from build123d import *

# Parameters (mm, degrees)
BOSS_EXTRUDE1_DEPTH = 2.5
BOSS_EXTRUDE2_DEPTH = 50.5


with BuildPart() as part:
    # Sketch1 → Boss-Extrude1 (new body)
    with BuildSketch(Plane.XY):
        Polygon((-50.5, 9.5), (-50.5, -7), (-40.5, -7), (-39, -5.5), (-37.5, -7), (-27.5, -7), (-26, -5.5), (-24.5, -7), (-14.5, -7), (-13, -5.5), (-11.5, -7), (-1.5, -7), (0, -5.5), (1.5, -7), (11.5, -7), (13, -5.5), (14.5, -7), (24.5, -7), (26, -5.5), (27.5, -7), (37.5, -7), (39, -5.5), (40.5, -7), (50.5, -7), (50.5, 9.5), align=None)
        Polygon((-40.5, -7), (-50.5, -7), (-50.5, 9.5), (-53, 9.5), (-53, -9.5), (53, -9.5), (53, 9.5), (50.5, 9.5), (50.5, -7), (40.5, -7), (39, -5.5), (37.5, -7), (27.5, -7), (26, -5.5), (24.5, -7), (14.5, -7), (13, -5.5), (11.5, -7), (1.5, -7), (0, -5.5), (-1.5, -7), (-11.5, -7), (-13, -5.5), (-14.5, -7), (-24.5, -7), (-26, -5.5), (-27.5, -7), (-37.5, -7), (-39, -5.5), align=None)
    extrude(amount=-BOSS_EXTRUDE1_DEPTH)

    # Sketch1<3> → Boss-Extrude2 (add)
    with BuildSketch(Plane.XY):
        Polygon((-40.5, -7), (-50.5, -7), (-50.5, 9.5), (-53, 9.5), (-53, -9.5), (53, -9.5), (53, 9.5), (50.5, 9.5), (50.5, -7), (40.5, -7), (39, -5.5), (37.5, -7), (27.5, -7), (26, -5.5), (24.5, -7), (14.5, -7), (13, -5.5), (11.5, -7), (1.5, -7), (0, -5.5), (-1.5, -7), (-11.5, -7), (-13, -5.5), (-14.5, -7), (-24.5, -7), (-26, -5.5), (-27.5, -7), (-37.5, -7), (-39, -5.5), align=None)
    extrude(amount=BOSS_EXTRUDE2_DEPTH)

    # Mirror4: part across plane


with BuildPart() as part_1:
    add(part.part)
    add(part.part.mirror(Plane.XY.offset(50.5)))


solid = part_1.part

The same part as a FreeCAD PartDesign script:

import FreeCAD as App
import Part
import Sketcher

V = App.Vector

doc = App.newDocument("Part")
params = doc.addObject("Spreadsheet::Sheet", "Params")
for row, (alias, value) in enumerate([
    ("sketch1_width", "106 mm"),
    ("sketch1_height", "19 mm"),
    ("pad1_length", "2.5 mm"),
    ("sketch2_width", "10 mm"),
    ("sketch2_width2", "106 mm"),
    ("sketch2_height", "19 mm"),
    ("sketch2_width3", "2.5 mm"),
    ("sketch2_height2", "16.5 mm"),
    ("pad2_length", "50.5 mm"),
], start=1):
    params.set(f"A{row}", alias)
    params.set(f"B{row}", "=" + value)
    params.setAlias(f"B{row}", alias)

body = doc.addObject("PartDesign::Body", "Body")

sketch1 = doc.addObject("Sketcher::SketchObject", "Sketch")
body.addObject(sketch1)
sketch1.AttachmentSupport = (doc.XY_Plane, [""])
sketch1.MapMode = "FlatFace"
sketch1.addGeometry([
    Part.LineSegment(V(-53, 10, 0), V(-53, -10, 0)),
    Part.LineSegment(V(-53, -10, 0), V(53, -10, 0)),
    Part.LineSegment(V(53, -10, 0), V(53, 10, 0)),
    Part.LineSegment(V(53, 10, 0), V(-53, 10, 0)),
], False)
sketch1.addConstraint([
    Sketcher.Constraint("Coincident", 0, 2, 1, 1),
    Sketcher.Constraint("Coincident", 1, 2, 2, 1),
    Sketcher.Constraint("Coincident", 2, 2, 3, 1),
    Sketcher.Constraint("Coincident", 3, 2, 0, 1),
    Sketcher.Constraint("Vertical", 0),
    Sketcher.Constraint("Horizontal", 1),
    Sketcher.Constraint("Vertical", 2),
    Sketcher.Constraint("Horizontal", 3),
    Sketcher.Constraint("Symmetric", 0, 2, 2, 2, -1, 1),
    Sketcher.Constraint("DistanceX", 1, 1, 1, 2, 106.0),
    Sketcher.Constraint("DistanceY", 0, 2, 0, 1, 19.0),
])
sketch1.setExpression("Constraints[9]", "Params.sketch1_width")
sketch1.setExpression("Constraints[10]", "Params.sketch1_height")
pad1 = doc.addObject("PartDesign::Pad", "Pad")
body.addObject(pad1)
pad1.Profile = sketch1
pad1.setExpression("Length", "Params.pad1_length")
pad1.Reversed = True

sketch2 = doc.addObject("Sketcher::SketchObject", "Sketch001")
body.addObject(sketch2)
sketch2.AttachmentSupport = (doc.XY_Plane, [""])
sketch2.MapMode = "FlatFace"
sketch2.addGeometry([
    Part.LineSegment(V(-40.5, -7, 0), V(-50.5, -7, 0)),
    Part.LineSegment(V(-50.5, -7, 0), V(-50.5, 9.5, 0)),
    Part.LineSegment(V(-50.5, 9.5, 0), V(-53, 9.5, 0)),
    Part.LineSegment(V(-53, 9.5, 0), V(-53, -9.5, 0)),
    Part.LineSegment(V(-53, -9.5, 0), V(53, -9.5, 0)),
    Part.LineSegment(V(53, -9.5, 0), V(53, 9.5, 0)),
    Part.LineSegment(V(53, 9.5, 0), V(50.5, 9.5, 0)),
    Part.LineSegment(V(50.5, 9.5, 0), V(50.5, -7, 0)),
    Part.LineSegment(V(50.5, -7, 0), V(40.5, -7, 0)),
    Part.LineSegment(V(40.5, -7, 0), V(39, -5.5, 0)),
    Part.LineSegment(V(39, -5.5, 0), V(37.5, -7, 0)),
    Part.LineSegment(V(37.5, -7, 0), V(27.5, -7, 0)),
    Part.LineSegment(V(27.5, -7, 0), V(26, -5.5, 0)),
    Part.LineSegment(V(26, -5.5, 0), V(24.5, -7, 0)),
    Part.LineSegment(V(24.5, -7, 0), V(14.5, -7, 0)),
    Part.LineSegment(V(14.5, -7, 0), V(13, -5.5, 0)),
    Part.LineSegment(V(13, -5.5, 0), V(11.5, -7, 0)),
    Part.LineSegment(V(11.5, -7, 0), V(1.5, -7, 0)),
    Part.LineSegment(V(1.5, -7, 0), V(0, -5.5, 0)),
    Part.LineSegment(V(0, -5.5, 0), V(-1.5, -7, 0)),
    Part.LineSegment(V(-1.5, -7, 0), V(-11.5, -7, 0)),
    Part.LineSegment(V(-11.5, -7, 0), V(-13, -5.5, 0)),
    Part.LineSegment(V(-13, -5.5, 0), V(-14.5, -7, 0)),
    Part.LineSegment(V(-14.5, -7, 0), V(-24.5, -7, 0)),
    Part.LineSegment(V(-24.5, -7, 0), V(-26, -5.5, 0)),
    Part.LineSegment(V(-26, -5.5, 0), V(-27.5, -7, 0)),
    Part.LineSegment(V(-27.5, -7, 0), V(-37.5, -7, 0)),
    Part.LineSegment(V(-37.5, -7, 0), V(-39, -5.5, 0)),
    Part.LineSegment(V(-39, -5.5, 0), V(-40.5, -7, 0)),
], False)
sketch2.addConstraint([
    Sketcher.Constraint("Coincident", 0, 2, 1, 1),
    Sketcher.Constraint("Coincident", 1, 2, 2, 1),
    Sketcher.Constraint("Coincident", 2, 2, 3, 1),
    Sketcher.Constraint("Coincident", 3, 2, 4, 1),
    Sketcher.Constraint("Coincident", 4, 2, 5, 1),
    Sketcher.Constraint("Coincident", 5, 2, 6, 1),
    Sketcher.Constraint("Coincident", 6, 2, 7, 1),
    Sketcher.Constraint("Coincident", 7, 2, 8, 1),
    Sketcher.Constraint("Coincident", 8, 2, 9, 1),
    Sketcher.Constraint("Coincident", 9, 2, 10, 1),
    Sketcher.Constraint("Coincident", 10, 2, 11, 1),
    Sketcher.Constraint("Coincident", 11, 2, 12, 1),
    Sketcher.Constraint("Coincident", 12, 2, 13, 1),
    Sketcher.Constraint("Coincident", 13, 2, 14, 1),
    Sketcher.Constraint("Coincident", 14, 2, 15, 1),
    Sketcher.Constraint("Coincident", 15, 2, 16, 1),
    Sketcher.Constraint("Coincident", 16, 2, 17, 1),
    Sketcher.Constraint("Coincident", 17, 2, 18, 1),
    Sketcher.Constraint("Coincident", 18, 2, 19, 1),
    Sketcher.Constraint("Coincident", 19, 2, 20, 1),
    Sketcher.Constraint("Coincident", 20, 2, 21, 1),
    Sketcher.Constraint("Coincident", 21, 2, 22, 1),
    Sketcher.Constraint("Coincident", 22, 2, 23, 1),
    Sketcher.Constraint("Coincident", 23, 2, 24, 1),
    Sketcher.Constraint("Coincident", 24, 2, 25, 1),
    Sketcher.Constraint("Coincident", 25, 2, 26, 1),
    Sketcher.Constraint("Coincident", 26, 2, 27, 1),
    Sketcher.Constraint("Coincident", 27, 2, 28, 1),
    Sketcher.Constraint("Coincident", 28, 2, 0, 1),
    Sketcher.Constraint("Horizontal", 0),
    Sketcher.Constraint("Vertical", 1),
    Sketcher.Constraint("Horizontal", 2),
    Sketcher.Constraint("Vertical", 3),
    Sketcher.Constraint("Horizontal", 4),
    Sketcher.Constraint("Vertical", 5),
    Sketcher.Constraint("Horizontal", 6),
    Sketcher.Constraint("Vertical", 7),
    Sketcher.Constraint("Horizontal", 8),
    Sketcher.Constraint("Horizontal", 11),
    Sketcher.Constraint("Horizontal", 14),
    Sketcher.Constraint("Horizontal", 17),
    Sketcher.Constraint("Horizontal", 20),
    Sketcher.Constraint("Horizontal", 23),
    Sketcher.Constraint("Horizontal", 26),
    Sketcher.Constraint("Symmetric", 2, 2, 4, 2, -1, 1),
    Sketcher.Constraint("Symmetric", 1, 2, 6, 2, -2),
    Sketcher.Constraint("Symmetric", 17, 2, 19, 2, -2),
    Sketcher.Constraint("Symmetric", 15, 2, 21, 2, -2),
    Sketcher.Constraint("Symmetric", 14, 2, 22, 2, -2),
    Sketcher.Constraint("Symmetric", 12, 2, 24, 2, -2),
    Sketcher.Constraint("Symmetric", 11, 2, 25, 2, -2),
    Sketcher.Constraint("Symmetric", 9, 2, 27, 2, -2),
    Sketcher.Constraint("Symmetric", 8, 2, 28, 2, -2),
    Sketcher.Constraint("PointOnObject", 18, 2, -2),
    Sketcher.Constraint("Perpendicular", 9, 10),
    Sketcher.Constraint("Perpendicular", 10, 12),
    Sketcher.Constraint("Perpendicular", 12, 13),
    Sketcher.Constraint("Perpendicular", 13, 15),
    Sketcher.Constraint("Perpendicular", 15, 16),
    Sketcher.Constraint("Perpendicular", 16, 18),
    Sketcher.Constraint("Perpendicular", 18, 19),
    Sketcher.Constraint("Perpendicular", 19, 21),
    Sketcher.Constraint("Perpendicular", 22, 24),
    Sketcher.Constraint("Perpendicular", 25, 27),
    Sketcher.Constraint("Horizontal", 8, 2, 10, 2),
    Sketcher.Constraint("Horizontal", 9, 2, 12, 2),
    Sketcher.Constraint("Horizontal", 11, 2, 13, 2),
    Sketcher.Constraint("Horizontal", 12, 2, 15, 2),
    Sketcher.Constraint("Horizontal", 14, 2, 16, 2),
    Sketcher.Constraint("Horizontal", 15, 2, 18, 2),
    Sketcher.Constraint("Equal", 8, 11),
    Sketcher.Constraint("Equal", 11, 14),
    Sketcher.Constraint("Equal", 14, 17),
    Sketcher.Constraint("DistanceX", 0, 2, 0, 1, 10.0),
    Sketcher.Constraint("DistanceX", 4, 1, 4, 2, 106.0),
    Sketcher.Constraint("DistanceY", 3, 2, 3, 1, 19.0),
    Sketcher.Constraint("DistanceX", 2, 2, 2, 1, 2.5),
    Sketcher.Constraint("DistanceY", 1, 1, 1, 2, 16.5),
])
sketch2.setExpression("Constraints[73]", "Params.sketch2_width")
sketch2.setExpression("Constraints[74]", "Params.sketch2_width2")
sketch2.setExpression("Constraints[75]", "Params.sketch2_height")
sketch2.setExpression("Constraints[76]", "Params.sketch2_width3")
sketch2.setExpression("Constraints[77]", "Params.sketch2_height2")
pad2 = doc.addObject("PartDesign::Pad", "Pad001")
body.addObject(pad2)
pad2.Profile = sketch2
pad2.setExpression("Length", "Params.pad2_length")
body2 = doc.addObject("PartDesign::Body", "Body001")
doc.recompute()

body2.BaseFeature = body
doc.recompute()

mirroring = doc.addObject("Part::Mirroring", "Mirroring")
mirroring.Source = body
mirroring.Base = V(0, 0, 50.5)
mirroring.Normal = V(0, 0, 1)
body3 = doc.addObject("PartDesign::Body", "Body002")
body3.BaseFeature = mirroring
boolean = doc.addObject("PartDesign::Boolean", "Boolean")
body2.addObject(boolean)
boolean.Type = "Fuse"
boolean.addObjects([body3])
doc.recompute()
mirroring.Visibility = False

doc.recompute()
